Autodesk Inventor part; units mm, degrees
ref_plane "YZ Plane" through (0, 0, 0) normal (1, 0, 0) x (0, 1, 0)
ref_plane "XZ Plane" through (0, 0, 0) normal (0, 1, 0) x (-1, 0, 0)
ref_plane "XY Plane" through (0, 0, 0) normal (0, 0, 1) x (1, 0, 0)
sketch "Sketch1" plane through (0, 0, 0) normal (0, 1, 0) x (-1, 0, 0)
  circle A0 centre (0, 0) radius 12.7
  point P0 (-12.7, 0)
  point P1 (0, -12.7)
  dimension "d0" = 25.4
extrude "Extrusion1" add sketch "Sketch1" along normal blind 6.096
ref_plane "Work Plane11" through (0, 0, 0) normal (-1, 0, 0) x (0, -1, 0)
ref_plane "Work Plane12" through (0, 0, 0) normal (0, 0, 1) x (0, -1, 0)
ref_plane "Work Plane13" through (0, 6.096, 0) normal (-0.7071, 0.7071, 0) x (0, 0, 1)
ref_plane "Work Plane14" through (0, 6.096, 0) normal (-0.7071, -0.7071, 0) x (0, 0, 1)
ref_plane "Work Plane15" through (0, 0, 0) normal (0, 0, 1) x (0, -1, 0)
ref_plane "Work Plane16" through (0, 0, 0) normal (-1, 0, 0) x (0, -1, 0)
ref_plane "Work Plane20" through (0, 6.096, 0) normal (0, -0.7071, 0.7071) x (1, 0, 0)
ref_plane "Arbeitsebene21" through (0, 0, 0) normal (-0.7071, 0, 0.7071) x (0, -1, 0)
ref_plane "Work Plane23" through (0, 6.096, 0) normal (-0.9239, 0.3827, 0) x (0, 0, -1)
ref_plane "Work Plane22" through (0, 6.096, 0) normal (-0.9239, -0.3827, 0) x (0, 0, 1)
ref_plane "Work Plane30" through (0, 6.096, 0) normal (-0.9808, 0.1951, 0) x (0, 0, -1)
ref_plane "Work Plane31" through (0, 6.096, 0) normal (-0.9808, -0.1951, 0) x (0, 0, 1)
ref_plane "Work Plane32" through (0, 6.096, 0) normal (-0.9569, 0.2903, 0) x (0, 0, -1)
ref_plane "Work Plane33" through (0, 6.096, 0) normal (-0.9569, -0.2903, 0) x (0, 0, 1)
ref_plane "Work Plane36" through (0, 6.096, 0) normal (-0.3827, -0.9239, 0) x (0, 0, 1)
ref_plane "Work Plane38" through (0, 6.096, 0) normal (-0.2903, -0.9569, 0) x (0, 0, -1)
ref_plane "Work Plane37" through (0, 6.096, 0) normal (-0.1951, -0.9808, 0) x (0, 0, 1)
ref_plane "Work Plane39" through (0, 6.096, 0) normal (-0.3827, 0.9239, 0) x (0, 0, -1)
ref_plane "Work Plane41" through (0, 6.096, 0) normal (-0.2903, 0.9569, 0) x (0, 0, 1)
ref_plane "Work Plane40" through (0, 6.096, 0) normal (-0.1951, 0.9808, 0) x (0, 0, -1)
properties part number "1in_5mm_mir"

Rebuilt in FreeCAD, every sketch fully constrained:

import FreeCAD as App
import Part
import Sketcher
from FreeCAD import Vector
Q = App.Units.Quantity

doc = App.newDocument("Part")
body = doc.addObject("PartDesign::Body", "Body")

# Sketch on XZ plane
sketch1 = doc.addObject("Sketcher::SketchObject", "Sketch")
body.addObject(sketch1)
sketch1.AttachmentSupport = (doc.XZ_Plane, [""])
sketch1.MapMode = "FlatFace"
sketch1.addGeometry(Part.Circle(Vector(0, 0, 0), Vector(0, 0, 1), 13), False)
sketch1.addConstraint(Sketcher.Constraint("Coincident", 0, 3, -1, 1))
sketch1.addConstraint(Sketcher.Constraint("Diameter", 0, Q("1 in")))
pad1 = doc.addObject("PartDesign::Pad", "Pad")
body.addObject(pad1)
pad1.Profile = sketch1
pad1.Length = Q("0.24 in")
pad1.Reversed = True

doc.recompute()
